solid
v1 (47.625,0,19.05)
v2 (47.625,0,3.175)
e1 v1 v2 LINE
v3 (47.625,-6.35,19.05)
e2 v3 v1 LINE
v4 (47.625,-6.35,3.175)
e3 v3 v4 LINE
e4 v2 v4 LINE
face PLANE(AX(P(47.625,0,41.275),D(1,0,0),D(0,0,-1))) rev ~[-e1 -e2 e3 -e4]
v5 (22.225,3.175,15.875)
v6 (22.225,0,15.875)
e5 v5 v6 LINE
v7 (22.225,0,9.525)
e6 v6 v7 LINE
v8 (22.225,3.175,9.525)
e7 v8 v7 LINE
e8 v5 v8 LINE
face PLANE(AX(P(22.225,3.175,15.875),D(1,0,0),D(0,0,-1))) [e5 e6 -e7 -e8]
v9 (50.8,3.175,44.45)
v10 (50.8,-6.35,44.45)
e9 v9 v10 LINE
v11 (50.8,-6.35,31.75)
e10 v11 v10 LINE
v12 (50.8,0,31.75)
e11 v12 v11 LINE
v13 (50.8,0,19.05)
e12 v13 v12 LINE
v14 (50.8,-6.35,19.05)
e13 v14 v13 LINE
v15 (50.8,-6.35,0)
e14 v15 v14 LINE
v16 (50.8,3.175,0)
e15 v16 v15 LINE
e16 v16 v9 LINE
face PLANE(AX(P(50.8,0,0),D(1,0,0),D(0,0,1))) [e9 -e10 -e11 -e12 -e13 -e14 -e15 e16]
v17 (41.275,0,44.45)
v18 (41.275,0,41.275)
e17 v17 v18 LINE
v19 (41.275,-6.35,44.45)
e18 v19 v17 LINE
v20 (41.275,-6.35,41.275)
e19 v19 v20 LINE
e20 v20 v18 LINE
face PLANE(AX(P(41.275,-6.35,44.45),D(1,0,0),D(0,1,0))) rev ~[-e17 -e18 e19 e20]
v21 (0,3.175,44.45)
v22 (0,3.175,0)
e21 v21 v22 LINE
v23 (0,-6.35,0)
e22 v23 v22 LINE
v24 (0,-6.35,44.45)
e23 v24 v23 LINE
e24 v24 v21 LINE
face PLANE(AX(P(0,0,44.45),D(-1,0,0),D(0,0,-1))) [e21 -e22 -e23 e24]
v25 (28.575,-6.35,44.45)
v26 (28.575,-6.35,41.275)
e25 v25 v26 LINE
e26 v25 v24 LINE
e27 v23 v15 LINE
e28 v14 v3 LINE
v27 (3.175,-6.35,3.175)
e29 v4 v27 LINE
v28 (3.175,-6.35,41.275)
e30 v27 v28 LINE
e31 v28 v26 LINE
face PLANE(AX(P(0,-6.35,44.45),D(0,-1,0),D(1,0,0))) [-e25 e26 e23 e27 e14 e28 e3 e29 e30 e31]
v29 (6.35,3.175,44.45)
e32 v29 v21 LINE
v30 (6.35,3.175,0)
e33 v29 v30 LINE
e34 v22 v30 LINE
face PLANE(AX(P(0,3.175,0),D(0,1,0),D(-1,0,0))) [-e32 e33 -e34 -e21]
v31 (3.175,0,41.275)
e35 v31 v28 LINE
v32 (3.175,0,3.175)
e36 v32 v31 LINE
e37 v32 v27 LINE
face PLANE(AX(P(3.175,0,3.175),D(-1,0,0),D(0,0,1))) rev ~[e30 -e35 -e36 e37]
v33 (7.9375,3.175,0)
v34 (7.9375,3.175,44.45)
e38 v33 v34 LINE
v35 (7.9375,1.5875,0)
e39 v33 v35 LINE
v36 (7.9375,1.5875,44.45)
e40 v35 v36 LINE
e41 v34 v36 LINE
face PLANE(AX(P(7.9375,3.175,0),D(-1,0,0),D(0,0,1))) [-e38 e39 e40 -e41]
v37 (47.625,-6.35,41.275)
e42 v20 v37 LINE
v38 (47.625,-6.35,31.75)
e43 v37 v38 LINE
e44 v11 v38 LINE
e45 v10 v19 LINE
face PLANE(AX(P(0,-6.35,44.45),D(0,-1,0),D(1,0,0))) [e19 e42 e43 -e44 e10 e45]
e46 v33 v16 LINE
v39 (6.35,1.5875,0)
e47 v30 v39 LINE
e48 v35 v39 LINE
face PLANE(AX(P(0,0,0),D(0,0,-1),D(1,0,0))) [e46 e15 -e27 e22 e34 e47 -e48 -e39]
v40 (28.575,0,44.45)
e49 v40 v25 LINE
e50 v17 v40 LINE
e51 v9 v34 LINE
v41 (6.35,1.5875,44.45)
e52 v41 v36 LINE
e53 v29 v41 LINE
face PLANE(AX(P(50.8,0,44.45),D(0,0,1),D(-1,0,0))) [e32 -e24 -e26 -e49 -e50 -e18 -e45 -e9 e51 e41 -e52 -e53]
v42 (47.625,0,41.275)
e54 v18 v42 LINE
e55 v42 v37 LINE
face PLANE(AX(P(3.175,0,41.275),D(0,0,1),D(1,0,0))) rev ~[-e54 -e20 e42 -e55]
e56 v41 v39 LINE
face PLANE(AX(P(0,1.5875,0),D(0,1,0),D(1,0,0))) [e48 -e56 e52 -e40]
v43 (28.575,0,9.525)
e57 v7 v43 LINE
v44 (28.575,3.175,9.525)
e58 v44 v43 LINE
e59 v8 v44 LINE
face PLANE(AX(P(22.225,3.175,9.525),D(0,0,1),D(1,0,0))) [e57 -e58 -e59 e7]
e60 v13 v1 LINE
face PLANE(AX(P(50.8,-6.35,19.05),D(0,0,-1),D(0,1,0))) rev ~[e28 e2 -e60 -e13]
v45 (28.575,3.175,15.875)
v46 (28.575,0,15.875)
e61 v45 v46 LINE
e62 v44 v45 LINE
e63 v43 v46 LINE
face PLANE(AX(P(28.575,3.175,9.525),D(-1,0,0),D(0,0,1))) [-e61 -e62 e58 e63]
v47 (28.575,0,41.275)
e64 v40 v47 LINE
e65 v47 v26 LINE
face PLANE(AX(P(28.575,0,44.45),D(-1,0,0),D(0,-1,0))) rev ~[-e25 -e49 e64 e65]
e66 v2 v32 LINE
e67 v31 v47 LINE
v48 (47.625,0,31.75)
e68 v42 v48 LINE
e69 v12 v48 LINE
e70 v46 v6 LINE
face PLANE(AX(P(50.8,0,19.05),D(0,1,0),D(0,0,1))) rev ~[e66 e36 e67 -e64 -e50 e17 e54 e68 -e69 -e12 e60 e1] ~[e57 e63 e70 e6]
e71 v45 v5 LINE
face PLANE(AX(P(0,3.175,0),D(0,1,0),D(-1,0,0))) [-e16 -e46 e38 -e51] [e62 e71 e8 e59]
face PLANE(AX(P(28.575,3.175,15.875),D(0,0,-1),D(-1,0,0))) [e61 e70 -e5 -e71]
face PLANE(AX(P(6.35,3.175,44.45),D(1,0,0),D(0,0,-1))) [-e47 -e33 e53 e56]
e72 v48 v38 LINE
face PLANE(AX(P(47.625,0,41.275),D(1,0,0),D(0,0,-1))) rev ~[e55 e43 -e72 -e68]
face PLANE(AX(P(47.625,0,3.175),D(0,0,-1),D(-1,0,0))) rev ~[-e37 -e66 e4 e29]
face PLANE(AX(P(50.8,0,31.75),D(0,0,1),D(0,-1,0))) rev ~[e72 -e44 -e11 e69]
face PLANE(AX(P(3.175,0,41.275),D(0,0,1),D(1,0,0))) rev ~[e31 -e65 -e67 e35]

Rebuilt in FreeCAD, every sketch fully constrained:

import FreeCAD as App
import Part
import Sketcher
from FreeCAD import Vector
Q = App.Units.Quantity


def add_polygon(sketch, points):
    """Adds a closed chain of lines whose ends are joined by coincident constraints."""
    first, n = sketch.GeometryCount, len(points)
    for a, b in zip(points, points[1:] + points[:1]):
        sketch.addGeometry(Part.LineSegment(App.Vector(*a, 0), App.Vector(*b, 0)), False)
    for i in range(n):
        sketch.addConstraint(Sketcher.Constraint("Coincident", first + i, 2, first + (i + 1) % n, 1))

doc = App.newDocument("Part")
body = doc.addObject("PartDesign::Body", "Body")

# Sketch on XZ plane
sketch1 = body.newObject("Sketcher::SketchObject", "Sketch")
sketch1.AttachmentSupport = (doc.getObject("XZ_Plane"), [""])
sketch1.MapMode = "FlatFace"
add_polygon(sketch1, [(50.8, 0), (0, 0), (0, 44.45), (50.8, 44.45)])  # lines 0-3
sketch1.addConstraint([
    Sketcher.Constraint("Horizontal", 0),
    Sketcher.Constraint("Vertical", 1),
    Sketcher.Constraint("Horizontal", 2),
    Sketcher.Constraint("Vertical", 3),
    Sketcher.Constraint("Coincident", 0, 2, -1, 1),
    Sketcher.Constraint("DistanceX", 0, 2, 0, 1, Q("2 in")),
    Sketcher.Constraint("DistanceY", 1, 1, 1, 2, Q("1.75 in")),
])
pad1 = body.newObject("PartDesign::Pad", "Pad")
pad1.Profile = sketch1
pad1.Length = Q("0.125 in")
pad1.Reversed = True

# Sketch on XZ plane
sketch2 = body.newObject("Sketcher::SketchObject", "Sketch001")
sketch2.AttachmentSupport = (doc.getObject("XZ_Plane"), [""])
sketch2.MapMode = "FlatFace"
add_polygon(sketch2, [(50.8, 0), (50.8, 44.45), (0, 44.45), (0, 0)])  # lines 0-3
add_polygon(sketch2, [(3.175, 3.175), (3.175, 41.275), (47.625, 41.275), (47.625, 3.175)])  # lines 4-7
sketch2.addConstraint([
    Sketcher.Constraint("Vertical", 0),
    Sketcher.Constraint("Horizontal", 1),
    Sketcher.Constraint("Vertical", 2),
    Sketcher.Constraint("Horizontal", 3),
    Sketcher.Constraint("Vertical", 4),
    Sketcher.Constraint("Horizontal", 5),
    Sketcher.Constraint("Vertical", 6),
    Sketcher.Constraint("Horizontal", 7),
    Sketcher.Constraint("Coincident", 2, 2, -1, 1),
    Sketcher.Constraint("Equal", 7, 0),
    Sketcher.Constraint("DistanceX", 1, 2, 1, 1, Q("2 in")),
    Sketcher.Constraint("DistanceY", 4, 1, 4, 2, Q("1.5 in")),
    Sketcher.Constraint("DistanceX", -1, 1, 4, 2, Q("0.125 in")),
    Sketcher.Constraint("DistanceY", -1, 1, 6, 2, Q("0.125 in")),
    Sketcher.Constraint("DistanceY", 4, 2, 1, 2, Q("0.125 in")),
])
pad2 = body.newObject("PartDesign::Pad", "Pad001")
pad2.Profile = sketch2
pad2.Length = Q("0.25 in")

# Sketch on XY plane
sketch3 = body.newObject("Sketcher::SketchObject", "Sketch002")
sketch3.AttachmentSupport = (doc.getObject("XY_Plane"), [""])
sketch3.MapMode = "FlatFace"
sketch3.AttachmentOffset = App.Placement(Vector(0, 0, 1.75 * 25.4), App.Rotation())
add_polygon(sketch3, [(28.575, 0), (28.575, -6.35), (41.275, -6.35), (41.275, 0)])  # lines 0-3
sketch3.addConstraint([
    Sketcher.Constraint("Vertical", 0),
    Sketcher.Constraint("Horizontal", 1),
    Sketcher.Constraint("Vertical", 2),
    Sketcher.Constraint("Horizontal", 3),
    Sketcher.Constraint("PointOnObject", 2, 2, -1),
    Sketcher.Constraint("DistanceY", 0, 2, 0, 1, Q("0.25 in")),
    Sketcher.Constraint("DistanceX", 1, 1, 1, 2, Q("0.5 in")),
    Sketcher.Constraint("DistanceX", -1, 1, 0, 2, Q("1.125 in")),
])
pocket1 = body.newObject("PartDesign::Pocket", "Pocket")
pocket1.Profile = sketch3
pocket1.Length = Q("0.125 in")

# Sketch on YZ plane
sketch4 = body.newObject("Sketcher::SketchObject", "Sketch003")
sketch4.AttachmentSupport = (doc.getObject("YZ_Plane"), [""])
sketch4.MapMode = "FlatFace"
sketch4.AttachmentOffset = App.Placement(Vector(0, 0, 2 * 25.4), App.Rotation())
add_polygon(sketch4, [(-6.35, 31.75), (-6.35, 19.05), (0, 19.05), (0, 31.75)])  # lines 0-3
sketch4.addConstraint([
    Sketcher.Constraint("Vertical", 0),
    Sketcher.Constraint("Horizontal", 1),
    Sketcher.Constraint("Vertical", 2),
    Sketcher.Constraint("Horizontal", 3),
    Sketcher.Constraint("PointOnObject", 1, 2, -2),
    Sketcher.Constraint("DistanceY", 0, 2, 0, 1, Q("0.5 in")),
    Sketcher.Constraint("DistanceX", 1, 1, 1, 2, Q("0.25 in")),
    Sketcher.Constraint("DistanceY", -1, 1, 0, 2, Q("0.75 in")),
])
pocket2 = body.newObject("PartDesign::Pocket", "Pocket001")
pocket2.Profile = sketch4
pocket2.Length = Q("0.125 in")

# Sketch on XZ plane
sketch5 = body.newObject("Sketcher::SketchObject", "Sketch004")
sketch5.AttachmentSupport = (doc.getObject("XZ_Plane"), [""])
sketch5.MapMode = "FlatFace"
sketch5.AttachmentOffset = App.Placement(Vector(0, 0, -0.125 * 25.4), App.Rotation())
add_polygon(sketch5, [(28.575, 9.525), (22.225, 9.525), (22.225, 15.875), (28.575, 15.875)])  # lines 0-3
sketch5.addConstraint([
    Sketcher.Constraint("Horizontal", 0),
    Sketcher.Constraint("Vertical", 1),
    Sketcher.Constraint("Horizontal", 2),
    Sketcher.Constraint("Vertical", 3),
    Sketcher.Constraint("Equal", 2, 1),
    Sketcher.Constraint("DistanceX", -1, 1, 0, 2, Q("0.875 in")),
    Sketcher.Constraint("DistanceY", -1, 1, 0, 2, Q("0.375 in")),
    Sketcher.Constraint("DistanceY", -1, 1, 1, 2, Q("0.625 in")),
])
pocket3 = body.newObject("PartDesign::Pocket", "Pocket002")
pocket3.Profile = sketch5
pocket3.Length = Q("0.125 in")
pocket3.Reversed = True

# Sketch on XZ plane
sketch6 = body.newObject("Sketcher::SketchObject", "Sketch005")
sketch6.AttachmentSupport = (doc.getObject("XZ_Plane"), [""])
sketch6.MapMode = "FlatFace"
sketch6.AttachmentOffset = App.Placement(Vector(0, 0, -0.125 * 25.4), App.Rotation())
add_polygon(sketch6, [(7.9375, 44.45), (7.9375, 0), (6.35, 0), (6.35, 44.45)])  # lines 0-3
sketch6.addConstraint([
    Sketcher.Constraint("Vertical", 0),
    Sketcher.Constraint("Horizontal", 1),
    Sketcher.Constraint("Vertical", 2),
    Sketcher.Constraint("Horizontal", 3),
    Sketcher.Constraint("PointOnObject", 0, 2, -1),
    Sketcher.Constraint("DistanceX", 1, 2, 1, 1, Q("0.0625 in")),
    Sketcher.Constraint("DistanceX", -1, 1, 1, 2, Q("0.25 in")),
    Sketcher.Constraint("DistanceY", 0, 2, 0, 1, Q("1.75 in")),
])
pocket4 = body.newObject("PartDesign::Pocket", "Pocket003")
pocket4.Profile = sketch6
pocket4.Length = Q("0.0625 in")
pocket4.Reversed = True

doc.recompute()
